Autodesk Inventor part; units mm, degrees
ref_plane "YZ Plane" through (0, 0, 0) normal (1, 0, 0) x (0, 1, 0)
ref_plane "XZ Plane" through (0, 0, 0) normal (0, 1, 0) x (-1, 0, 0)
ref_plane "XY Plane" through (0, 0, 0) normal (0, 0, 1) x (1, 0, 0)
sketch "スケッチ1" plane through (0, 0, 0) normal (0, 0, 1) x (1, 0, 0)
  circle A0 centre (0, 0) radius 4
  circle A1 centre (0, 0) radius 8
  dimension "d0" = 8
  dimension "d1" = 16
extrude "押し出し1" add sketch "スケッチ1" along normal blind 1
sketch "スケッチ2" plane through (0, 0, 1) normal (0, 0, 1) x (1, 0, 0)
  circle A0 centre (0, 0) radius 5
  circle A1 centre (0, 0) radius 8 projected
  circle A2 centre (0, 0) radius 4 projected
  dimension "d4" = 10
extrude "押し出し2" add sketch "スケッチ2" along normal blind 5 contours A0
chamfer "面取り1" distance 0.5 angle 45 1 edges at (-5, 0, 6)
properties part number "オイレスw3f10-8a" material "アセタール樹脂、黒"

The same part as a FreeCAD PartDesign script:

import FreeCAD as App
import Part
import Sketcher

V = App.Vector


def edges_at(feature, points):
    """Names of the edges that pass closest to the given points."""
    edges = feature.Shape.Edges
    near = lambda p: min(range(len(edges)), key=lambda i: edges[i].distToShape(Part.Vertex(*p))[0])
    return sorted({f"Edge{near(p) + 1}" for p in points})

doc = App.newDocument("Part")
body = doc.addObject("PartDesign::Body", "Body")

# Sketch on XY plane
sketch1 = body.newObject("Sketcher::SketchObject", "Sketch")
sketch1.AttachmentSupport = (doc.getObject("XY_Plane"), [""])
sketch1.MapMode = "FlatFace"
sketch1.addGeometry([
    Part.Circle(V(0, 0, 0), V(0, 0, 1), 8),
    Part.Circle(V(0, 0, 0), V(0, 0, 1), 4),
], False)
sketch1.addConstraint([
    Sketcher.Constraint("Coincident", 0, 3, -1, 1),
    Sketcher.Constraint("Coincident", 1, 3, -1, 1),
    Sketcher.Constraint("Diameter", 0, 16.0),
    Sketcher.Constraint("Diameter", 1, 8.0),
])
pad1 = body.newObject("PartDesign::Pad", "Pad")
pad1.Profile = sketch1
pad1.Length = 1

# Sketch on XY plane
sketch2 = body.newObject("Sketcher::SketchObject", "Sketch001")
sketch2.AttachmentSupport = (doc.getObject("XY_Plane"), [""])
sketch2.MapMode = "FlatFace"
sketch2.AttachmentOffset = App.Placement(V(0, 0, 1), App.Rotation())
sketch2.addGeometry([
    Part.Circle(V(0, 0, 0), V(0, 0, 1), 5),
    Part.Circle(V(0, 0, 0), V(0, 0, 1), 4),
], False)
sketch2.addConstraint([
    Sketcher.Constraint("Coincident", 0, 3, -1, 1),
    Sketcher.Constraint("Coincident", 1, 3, -1, 1),
    Sketcher.Constraint("Diameter", 0, 10.0),
    Sketcher.Constraint("Diameter", 1, 8.0),
])
pad2 = body.newObject("PartDesign::Pad", "Pad001")
pad2.Profile = sketch2
pad2.Length = 5
doc.recompute()

chamfer = body.newObject("PartDesign::Chamfer", "Chamfer")
chamfer.Base = (pad2, edges_at(pad2, [(-5, 0, 6)]))
chamfer.Size = 0.5

doc.recompute()
